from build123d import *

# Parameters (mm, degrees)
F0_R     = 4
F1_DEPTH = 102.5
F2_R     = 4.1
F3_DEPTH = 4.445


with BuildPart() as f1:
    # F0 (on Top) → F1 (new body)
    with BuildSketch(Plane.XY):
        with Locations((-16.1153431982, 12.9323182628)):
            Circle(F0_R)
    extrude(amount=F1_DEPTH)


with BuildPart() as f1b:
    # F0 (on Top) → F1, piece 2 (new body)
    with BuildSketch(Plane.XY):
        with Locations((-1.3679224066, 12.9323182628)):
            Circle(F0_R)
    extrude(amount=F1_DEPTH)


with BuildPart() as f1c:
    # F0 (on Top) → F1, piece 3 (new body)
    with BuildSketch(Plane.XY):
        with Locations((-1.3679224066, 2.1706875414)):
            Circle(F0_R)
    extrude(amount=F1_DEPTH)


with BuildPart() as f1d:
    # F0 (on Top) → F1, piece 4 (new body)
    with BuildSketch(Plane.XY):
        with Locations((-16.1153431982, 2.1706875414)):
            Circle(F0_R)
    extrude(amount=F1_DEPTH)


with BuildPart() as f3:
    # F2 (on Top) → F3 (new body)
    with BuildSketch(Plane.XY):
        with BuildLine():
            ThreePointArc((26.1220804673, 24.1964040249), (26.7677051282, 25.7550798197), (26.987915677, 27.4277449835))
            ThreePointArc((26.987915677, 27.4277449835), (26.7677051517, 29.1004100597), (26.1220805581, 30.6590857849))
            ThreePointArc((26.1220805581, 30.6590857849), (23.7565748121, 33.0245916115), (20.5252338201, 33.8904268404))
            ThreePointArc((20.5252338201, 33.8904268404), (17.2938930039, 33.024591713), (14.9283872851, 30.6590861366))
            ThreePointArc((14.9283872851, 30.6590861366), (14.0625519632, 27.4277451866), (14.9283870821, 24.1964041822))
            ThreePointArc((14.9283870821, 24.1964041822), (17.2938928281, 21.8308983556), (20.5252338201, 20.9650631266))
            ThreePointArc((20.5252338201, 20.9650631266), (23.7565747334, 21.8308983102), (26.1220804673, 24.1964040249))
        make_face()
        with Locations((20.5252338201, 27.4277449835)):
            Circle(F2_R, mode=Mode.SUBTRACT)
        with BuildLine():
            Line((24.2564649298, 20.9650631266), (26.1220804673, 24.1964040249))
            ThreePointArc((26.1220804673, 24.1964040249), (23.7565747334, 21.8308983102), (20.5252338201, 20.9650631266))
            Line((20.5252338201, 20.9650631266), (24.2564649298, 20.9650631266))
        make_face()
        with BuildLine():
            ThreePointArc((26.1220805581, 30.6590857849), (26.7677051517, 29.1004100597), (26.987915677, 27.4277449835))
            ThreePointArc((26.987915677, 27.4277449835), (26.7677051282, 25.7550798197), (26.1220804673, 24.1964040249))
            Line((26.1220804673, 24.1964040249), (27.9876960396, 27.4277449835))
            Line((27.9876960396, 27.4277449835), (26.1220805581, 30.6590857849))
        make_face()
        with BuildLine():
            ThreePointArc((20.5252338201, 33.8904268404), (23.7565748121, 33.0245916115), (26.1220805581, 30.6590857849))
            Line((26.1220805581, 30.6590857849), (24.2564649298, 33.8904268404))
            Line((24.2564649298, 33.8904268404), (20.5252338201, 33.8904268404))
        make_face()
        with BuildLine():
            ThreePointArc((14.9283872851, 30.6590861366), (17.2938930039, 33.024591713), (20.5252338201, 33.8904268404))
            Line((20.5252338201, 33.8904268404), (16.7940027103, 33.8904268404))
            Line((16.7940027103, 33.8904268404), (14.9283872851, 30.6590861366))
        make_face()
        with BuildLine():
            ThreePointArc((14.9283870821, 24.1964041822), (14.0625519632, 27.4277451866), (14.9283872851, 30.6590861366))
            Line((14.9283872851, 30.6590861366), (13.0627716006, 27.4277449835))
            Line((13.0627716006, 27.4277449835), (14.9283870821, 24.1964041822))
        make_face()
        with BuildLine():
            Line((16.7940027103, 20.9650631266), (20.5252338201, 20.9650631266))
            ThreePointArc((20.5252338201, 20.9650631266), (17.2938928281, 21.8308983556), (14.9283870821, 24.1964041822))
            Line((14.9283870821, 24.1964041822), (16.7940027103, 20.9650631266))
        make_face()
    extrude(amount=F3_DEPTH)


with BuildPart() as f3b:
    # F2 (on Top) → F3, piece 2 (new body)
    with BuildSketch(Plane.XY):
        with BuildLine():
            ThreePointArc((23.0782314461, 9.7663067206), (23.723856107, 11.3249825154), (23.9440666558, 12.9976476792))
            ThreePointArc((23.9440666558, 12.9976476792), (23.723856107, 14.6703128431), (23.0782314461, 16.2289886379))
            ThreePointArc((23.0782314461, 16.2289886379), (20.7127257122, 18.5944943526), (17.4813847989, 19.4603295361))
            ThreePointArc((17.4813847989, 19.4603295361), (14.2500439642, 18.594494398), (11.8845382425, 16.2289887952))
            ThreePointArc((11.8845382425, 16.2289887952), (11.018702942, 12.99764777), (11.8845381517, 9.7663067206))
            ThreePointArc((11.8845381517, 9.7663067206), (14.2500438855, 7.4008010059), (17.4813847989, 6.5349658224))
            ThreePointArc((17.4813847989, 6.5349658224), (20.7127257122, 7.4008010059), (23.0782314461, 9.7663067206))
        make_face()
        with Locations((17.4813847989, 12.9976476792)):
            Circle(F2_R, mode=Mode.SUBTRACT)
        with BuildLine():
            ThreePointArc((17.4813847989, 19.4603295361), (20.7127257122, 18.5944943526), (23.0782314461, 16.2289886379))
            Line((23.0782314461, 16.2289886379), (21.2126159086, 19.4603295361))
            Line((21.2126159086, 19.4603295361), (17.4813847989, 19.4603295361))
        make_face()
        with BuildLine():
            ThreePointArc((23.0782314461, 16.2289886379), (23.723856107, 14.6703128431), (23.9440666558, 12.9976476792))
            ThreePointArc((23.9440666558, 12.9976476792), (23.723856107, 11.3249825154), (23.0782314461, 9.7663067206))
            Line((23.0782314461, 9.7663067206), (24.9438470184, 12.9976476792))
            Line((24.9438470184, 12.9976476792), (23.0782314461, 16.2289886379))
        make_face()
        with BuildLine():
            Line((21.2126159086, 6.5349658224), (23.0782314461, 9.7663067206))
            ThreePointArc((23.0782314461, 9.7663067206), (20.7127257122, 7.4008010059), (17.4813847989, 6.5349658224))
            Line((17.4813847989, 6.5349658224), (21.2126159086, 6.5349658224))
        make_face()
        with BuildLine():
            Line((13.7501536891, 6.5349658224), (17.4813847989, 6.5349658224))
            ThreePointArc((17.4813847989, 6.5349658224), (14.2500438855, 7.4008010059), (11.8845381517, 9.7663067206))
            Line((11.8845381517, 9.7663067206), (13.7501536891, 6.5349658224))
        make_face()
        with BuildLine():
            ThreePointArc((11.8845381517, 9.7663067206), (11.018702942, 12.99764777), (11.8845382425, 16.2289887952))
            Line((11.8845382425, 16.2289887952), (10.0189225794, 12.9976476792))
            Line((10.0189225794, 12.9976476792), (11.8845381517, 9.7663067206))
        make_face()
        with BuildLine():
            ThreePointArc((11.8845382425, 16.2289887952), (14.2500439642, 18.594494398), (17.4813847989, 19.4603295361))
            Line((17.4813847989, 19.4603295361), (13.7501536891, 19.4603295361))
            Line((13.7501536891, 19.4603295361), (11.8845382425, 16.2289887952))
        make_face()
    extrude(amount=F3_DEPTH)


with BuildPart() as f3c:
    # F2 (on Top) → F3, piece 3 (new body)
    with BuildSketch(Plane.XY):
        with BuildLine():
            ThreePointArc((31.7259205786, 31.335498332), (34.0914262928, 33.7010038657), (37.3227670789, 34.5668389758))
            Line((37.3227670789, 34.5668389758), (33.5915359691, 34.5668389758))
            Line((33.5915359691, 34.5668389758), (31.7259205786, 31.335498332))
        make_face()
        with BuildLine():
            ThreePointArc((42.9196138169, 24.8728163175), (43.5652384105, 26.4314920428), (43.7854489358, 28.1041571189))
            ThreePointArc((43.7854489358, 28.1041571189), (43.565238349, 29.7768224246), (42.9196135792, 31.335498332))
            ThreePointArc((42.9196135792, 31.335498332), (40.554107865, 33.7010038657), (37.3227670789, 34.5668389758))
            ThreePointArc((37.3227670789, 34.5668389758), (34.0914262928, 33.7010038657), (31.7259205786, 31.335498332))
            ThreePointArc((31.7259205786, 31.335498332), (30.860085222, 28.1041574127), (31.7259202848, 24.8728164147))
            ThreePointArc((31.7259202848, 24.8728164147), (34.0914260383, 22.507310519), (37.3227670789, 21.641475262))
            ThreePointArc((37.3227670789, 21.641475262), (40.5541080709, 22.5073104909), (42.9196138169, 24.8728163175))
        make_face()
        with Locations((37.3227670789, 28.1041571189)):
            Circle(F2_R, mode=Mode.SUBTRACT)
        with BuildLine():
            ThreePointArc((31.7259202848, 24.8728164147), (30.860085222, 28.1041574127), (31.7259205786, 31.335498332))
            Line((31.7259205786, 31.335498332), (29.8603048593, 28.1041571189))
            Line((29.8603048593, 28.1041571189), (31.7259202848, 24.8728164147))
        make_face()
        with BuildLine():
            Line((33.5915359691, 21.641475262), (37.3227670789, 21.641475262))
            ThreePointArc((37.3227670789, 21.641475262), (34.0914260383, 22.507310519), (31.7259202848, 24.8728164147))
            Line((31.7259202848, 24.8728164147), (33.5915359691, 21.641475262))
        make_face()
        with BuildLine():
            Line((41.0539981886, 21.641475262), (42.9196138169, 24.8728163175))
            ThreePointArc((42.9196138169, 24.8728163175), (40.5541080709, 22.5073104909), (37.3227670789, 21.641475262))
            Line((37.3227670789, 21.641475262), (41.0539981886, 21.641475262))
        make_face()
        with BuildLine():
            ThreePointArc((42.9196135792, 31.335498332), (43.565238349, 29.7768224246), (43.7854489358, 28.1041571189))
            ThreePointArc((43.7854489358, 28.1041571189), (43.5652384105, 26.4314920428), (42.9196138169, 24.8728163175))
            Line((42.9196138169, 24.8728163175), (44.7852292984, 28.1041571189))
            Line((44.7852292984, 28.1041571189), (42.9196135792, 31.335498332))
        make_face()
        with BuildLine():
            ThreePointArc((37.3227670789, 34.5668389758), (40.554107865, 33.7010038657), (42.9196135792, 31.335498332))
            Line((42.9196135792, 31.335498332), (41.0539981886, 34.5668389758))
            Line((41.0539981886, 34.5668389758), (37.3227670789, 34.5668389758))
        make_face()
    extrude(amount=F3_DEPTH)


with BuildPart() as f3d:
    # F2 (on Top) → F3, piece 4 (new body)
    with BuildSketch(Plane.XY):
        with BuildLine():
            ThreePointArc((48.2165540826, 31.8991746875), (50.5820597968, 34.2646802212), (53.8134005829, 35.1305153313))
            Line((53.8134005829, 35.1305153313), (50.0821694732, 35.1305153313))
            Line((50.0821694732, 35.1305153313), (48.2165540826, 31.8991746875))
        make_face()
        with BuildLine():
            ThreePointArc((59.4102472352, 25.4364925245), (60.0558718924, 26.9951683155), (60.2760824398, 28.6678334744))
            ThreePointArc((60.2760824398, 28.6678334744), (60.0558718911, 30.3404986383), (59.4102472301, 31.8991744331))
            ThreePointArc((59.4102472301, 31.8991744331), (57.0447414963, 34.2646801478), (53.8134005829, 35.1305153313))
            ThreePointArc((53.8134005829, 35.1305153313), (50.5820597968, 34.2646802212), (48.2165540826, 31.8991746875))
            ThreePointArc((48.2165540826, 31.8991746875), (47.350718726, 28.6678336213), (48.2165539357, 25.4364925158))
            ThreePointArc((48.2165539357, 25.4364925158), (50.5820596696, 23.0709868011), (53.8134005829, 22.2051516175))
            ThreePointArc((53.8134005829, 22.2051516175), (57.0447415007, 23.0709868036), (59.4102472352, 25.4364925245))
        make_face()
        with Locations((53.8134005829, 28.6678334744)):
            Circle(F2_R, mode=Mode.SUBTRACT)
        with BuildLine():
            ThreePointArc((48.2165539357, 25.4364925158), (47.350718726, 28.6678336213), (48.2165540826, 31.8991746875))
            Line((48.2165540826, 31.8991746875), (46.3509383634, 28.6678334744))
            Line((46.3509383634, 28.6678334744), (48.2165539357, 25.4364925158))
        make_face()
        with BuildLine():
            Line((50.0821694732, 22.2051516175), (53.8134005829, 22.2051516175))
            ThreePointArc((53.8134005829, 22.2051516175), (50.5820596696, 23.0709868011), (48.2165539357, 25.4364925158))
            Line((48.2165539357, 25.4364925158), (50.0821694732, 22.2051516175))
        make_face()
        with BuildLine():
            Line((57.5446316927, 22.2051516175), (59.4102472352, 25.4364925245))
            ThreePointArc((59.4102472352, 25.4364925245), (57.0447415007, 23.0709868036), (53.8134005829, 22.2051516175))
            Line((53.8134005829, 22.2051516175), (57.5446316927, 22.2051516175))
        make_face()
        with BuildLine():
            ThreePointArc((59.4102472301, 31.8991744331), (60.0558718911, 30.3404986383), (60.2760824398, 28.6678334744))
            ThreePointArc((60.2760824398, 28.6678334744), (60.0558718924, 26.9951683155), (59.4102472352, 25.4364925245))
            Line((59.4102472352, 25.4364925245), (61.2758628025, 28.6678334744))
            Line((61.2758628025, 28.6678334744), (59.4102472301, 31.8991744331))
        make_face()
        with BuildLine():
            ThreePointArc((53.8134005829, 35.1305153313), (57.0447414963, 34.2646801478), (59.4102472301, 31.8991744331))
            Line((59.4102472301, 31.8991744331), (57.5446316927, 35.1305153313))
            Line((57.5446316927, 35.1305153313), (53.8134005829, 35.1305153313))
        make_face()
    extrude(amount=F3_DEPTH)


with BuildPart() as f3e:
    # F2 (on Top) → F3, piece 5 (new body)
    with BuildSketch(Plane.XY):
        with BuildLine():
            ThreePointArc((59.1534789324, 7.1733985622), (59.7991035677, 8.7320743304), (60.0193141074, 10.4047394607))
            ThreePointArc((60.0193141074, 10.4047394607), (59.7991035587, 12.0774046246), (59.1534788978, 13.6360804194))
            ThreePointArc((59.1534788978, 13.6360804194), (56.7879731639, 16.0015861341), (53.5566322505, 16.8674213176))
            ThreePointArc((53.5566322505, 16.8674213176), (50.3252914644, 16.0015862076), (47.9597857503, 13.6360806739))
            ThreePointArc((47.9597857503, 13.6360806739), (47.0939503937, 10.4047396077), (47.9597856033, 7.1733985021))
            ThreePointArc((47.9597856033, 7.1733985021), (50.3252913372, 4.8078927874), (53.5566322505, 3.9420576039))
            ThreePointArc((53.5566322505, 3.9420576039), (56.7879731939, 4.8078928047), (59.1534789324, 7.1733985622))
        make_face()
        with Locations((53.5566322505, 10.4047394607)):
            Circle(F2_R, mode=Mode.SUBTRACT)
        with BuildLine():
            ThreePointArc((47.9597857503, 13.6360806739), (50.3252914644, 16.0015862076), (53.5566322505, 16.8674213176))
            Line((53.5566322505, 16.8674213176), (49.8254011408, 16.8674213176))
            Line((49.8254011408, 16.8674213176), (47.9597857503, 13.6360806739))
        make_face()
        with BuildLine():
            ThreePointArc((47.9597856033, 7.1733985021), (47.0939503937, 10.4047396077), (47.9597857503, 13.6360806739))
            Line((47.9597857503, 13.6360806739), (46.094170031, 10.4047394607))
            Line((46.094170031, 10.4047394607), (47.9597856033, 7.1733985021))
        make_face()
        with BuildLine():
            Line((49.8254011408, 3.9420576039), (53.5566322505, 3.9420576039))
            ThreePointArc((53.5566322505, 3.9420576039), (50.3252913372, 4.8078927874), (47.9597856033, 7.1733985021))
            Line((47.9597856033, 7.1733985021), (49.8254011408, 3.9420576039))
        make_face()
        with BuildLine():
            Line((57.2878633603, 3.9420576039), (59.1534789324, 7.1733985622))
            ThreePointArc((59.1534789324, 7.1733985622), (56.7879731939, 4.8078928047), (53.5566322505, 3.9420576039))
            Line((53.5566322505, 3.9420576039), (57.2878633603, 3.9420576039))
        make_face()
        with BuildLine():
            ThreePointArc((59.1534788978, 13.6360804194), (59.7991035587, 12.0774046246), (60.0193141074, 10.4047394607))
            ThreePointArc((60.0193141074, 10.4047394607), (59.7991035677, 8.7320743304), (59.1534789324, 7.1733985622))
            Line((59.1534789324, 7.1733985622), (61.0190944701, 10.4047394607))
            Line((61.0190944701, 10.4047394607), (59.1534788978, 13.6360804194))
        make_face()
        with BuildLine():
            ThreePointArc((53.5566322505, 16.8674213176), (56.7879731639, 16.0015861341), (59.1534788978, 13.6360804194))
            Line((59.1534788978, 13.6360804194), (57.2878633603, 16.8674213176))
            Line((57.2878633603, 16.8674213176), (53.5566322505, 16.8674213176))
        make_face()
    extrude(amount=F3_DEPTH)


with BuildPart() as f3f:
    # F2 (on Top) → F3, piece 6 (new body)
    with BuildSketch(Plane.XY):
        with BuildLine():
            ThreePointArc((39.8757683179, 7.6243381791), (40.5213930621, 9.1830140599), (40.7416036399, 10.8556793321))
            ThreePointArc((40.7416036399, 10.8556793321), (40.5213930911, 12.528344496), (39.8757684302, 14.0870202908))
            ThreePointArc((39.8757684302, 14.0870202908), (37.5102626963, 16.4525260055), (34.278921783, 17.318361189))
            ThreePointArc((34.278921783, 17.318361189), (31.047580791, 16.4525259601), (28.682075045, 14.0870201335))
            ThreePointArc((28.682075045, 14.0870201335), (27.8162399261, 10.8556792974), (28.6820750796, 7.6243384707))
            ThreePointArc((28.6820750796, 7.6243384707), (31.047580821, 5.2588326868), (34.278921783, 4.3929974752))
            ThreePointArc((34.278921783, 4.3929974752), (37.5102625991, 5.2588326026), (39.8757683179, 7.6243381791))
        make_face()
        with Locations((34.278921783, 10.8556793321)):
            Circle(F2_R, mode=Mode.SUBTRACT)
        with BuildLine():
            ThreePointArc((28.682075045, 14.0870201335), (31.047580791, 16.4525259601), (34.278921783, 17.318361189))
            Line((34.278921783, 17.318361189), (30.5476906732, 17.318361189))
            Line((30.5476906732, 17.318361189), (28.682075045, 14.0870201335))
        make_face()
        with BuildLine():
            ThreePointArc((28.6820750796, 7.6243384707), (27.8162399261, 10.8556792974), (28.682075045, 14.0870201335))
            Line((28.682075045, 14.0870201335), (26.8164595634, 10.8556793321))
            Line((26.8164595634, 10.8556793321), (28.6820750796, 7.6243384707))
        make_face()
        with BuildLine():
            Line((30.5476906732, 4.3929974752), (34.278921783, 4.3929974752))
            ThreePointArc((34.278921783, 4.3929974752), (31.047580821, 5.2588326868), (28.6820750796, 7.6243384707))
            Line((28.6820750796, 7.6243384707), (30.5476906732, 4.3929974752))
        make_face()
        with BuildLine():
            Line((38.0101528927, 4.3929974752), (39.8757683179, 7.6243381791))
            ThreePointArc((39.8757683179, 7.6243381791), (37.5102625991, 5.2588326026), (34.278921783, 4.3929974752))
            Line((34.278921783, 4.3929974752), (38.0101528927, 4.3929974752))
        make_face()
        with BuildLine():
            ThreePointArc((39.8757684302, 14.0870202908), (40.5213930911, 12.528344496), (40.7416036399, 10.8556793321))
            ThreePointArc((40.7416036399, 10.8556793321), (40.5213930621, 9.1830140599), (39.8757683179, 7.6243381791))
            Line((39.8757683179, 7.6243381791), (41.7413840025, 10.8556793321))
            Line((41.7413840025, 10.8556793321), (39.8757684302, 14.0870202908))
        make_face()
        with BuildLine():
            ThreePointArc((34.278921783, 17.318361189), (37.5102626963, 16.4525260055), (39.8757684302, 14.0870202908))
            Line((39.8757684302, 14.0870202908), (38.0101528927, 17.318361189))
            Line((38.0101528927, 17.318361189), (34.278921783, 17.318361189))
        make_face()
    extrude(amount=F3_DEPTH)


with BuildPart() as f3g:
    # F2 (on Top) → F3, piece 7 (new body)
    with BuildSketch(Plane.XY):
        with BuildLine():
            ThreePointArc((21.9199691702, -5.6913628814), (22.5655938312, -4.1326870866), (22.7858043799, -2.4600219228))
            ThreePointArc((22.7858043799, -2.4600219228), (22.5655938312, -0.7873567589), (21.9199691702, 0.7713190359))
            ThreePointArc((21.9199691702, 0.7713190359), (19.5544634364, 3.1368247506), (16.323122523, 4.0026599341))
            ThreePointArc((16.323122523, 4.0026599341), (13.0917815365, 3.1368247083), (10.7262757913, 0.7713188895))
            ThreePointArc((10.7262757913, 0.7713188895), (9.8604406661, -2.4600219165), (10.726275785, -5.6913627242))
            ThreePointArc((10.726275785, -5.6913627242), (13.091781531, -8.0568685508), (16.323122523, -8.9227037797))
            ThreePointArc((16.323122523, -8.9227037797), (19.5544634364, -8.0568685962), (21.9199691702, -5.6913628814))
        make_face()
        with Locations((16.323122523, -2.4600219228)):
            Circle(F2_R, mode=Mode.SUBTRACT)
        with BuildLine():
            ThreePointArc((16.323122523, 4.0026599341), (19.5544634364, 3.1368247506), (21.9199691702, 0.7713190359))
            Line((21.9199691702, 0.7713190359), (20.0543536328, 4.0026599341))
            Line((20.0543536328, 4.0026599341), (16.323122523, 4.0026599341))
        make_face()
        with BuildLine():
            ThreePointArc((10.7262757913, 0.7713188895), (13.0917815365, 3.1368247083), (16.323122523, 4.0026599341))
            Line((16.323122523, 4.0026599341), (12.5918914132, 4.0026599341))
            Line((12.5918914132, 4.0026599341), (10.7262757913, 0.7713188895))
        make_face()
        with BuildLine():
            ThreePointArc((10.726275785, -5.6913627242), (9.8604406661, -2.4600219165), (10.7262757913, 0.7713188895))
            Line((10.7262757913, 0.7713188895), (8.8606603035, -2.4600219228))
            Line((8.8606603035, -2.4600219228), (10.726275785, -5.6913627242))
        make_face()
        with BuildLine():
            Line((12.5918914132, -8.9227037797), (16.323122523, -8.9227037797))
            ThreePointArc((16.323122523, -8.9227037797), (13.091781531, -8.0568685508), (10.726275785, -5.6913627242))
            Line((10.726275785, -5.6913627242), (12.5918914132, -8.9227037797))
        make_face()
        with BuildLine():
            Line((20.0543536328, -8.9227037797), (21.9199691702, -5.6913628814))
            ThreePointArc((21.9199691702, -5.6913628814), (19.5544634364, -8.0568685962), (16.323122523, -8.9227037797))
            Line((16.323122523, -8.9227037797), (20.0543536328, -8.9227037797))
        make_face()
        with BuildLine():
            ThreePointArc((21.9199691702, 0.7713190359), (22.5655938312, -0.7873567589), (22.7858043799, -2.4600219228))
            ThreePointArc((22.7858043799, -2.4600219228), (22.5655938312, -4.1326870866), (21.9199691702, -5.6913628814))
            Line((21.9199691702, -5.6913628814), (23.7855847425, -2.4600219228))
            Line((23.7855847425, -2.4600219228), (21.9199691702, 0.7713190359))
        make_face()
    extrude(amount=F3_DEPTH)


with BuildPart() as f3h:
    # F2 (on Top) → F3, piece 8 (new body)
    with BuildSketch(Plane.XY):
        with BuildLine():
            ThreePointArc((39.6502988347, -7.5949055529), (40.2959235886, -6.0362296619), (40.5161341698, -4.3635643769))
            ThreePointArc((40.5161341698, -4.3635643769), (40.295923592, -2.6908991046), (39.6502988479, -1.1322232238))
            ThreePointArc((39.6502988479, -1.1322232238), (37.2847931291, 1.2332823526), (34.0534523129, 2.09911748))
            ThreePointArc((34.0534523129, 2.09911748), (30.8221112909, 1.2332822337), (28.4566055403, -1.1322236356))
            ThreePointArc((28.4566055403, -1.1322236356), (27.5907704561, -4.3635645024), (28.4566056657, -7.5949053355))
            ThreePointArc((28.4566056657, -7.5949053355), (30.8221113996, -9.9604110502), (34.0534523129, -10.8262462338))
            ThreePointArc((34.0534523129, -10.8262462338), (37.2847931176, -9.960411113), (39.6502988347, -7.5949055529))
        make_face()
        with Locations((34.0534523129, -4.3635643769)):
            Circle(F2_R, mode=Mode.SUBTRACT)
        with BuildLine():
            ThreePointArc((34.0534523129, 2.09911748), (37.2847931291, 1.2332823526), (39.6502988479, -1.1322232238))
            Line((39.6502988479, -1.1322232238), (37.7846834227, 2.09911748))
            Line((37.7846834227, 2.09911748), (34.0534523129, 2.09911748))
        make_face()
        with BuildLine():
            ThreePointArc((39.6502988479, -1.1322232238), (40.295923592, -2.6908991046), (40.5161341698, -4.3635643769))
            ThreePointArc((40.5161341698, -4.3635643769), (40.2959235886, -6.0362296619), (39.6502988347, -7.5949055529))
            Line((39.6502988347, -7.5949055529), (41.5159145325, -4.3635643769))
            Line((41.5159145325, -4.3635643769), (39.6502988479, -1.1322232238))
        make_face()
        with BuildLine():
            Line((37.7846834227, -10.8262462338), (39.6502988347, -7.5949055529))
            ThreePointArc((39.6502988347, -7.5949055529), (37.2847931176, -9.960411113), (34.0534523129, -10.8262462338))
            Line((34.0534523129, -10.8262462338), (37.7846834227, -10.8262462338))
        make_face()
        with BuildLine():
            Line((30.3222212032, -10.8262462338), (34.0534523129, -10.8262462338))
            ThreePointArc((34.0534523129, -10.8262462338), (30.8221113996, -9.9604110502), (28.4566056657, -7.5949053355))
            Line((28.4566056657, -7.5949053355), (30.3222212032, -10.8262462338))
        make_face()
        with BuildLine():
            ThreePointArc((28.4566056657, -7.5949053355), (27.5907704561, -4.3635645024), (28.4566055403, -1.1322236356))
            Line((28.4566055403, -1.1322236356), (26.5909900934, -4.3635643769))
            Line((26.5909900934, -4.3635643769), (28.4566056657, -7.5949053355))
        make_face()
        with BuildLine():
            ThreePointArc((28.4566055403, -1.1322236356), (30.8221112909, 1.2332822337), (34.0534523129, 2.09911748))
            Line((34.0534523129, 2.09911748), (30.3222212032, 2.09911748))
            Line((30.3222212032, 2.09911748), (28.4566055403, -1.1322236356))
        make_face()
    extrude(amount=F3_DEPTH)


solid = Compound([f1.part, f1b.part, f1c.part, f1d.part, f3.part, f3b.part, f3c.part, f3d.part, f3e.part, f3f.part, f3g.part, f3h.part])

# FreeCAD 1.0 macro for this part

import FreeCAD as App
import Part
import Sketcher
from FreeCAD import Vector
Q = App.Units.Quantity

doc = App.newDocument("Part")
params = doc.addObject("Spreadsheet::Sheet", "Params")
for row, (alias, value) in enumerate([
    ("sketch1_diameter", "8 mm"),
    ("pad1_length", "102.5 mm"),
    ("sketch2_diameter", "8 mm"),
    ("pad2_length", "102.5 mm"),
    ("sketch3_diameter", "8 mm"),
    ("pad3_length", "102.5 mm"),
    ("sketch4_diameter", "8 mm"),
    ("pad4_length", "102.5 mm"),
    ("sketch5_diameter", "8.2 mm"),
    ("pad5_length", "4.445 mm"),
    ("sketch6_diameter", "8.2 mm"),
    ("pad6_length", "4.445 mm"),
    ("sketch7_diameter", "8.2 mm"),
    ("pad7_length", "4.445 mm"),
    ("sketch8_diameter", "8.2 mm"),
    ("pad8_length", "4.445 mm"),
    ("sketch9_diameter", "8.2 mm"),
    ("pad9_length", "4.445 mm"),
    ("sketch10_diameter", "8.2 mm"),
    ("pad10_length", "4.445 mm"),
    ("sketch11_diameter", "8.2 mm"),
    ("pad11_length", "4.445 mm"),
    ("sketch12_diameter", "8.2 mm"),
    ("pad12_length", "4.445 mm"),
], start=1):
    params.set(f"A{row}", alias)
    params.set(f"B{row}", "=" + value)
    params.setAlias(f"B{row}", alias)

body = doc.addObject("PartDesign::Body", "Body")

sketch1 = doc.addObject("Sketcher::SketchObject", "Sketch")
body.addObject(sketch1)
sketch1.AttachmentSupport = (doc.XY_Plane, [""])
sketch1.MapMode = "FlatFace"
sketch1.addGeometry(Part.Circle(Vector(-16.115343, 12.932318, 0), Vector(0, 0, 1), 4), False)
sketch1.addConstraint(Sketcher.Constraint("Diameter", 0, 8.0))
sketch1.addConstraint(Sketcher.Constraint("DistanceY", -1, 1, 0, 3, 12.932318))
sketch1.addConstraint(Sketcher.Constraint("DistanceX", 0, 3, -1, 1, 16.115343))
sketch1.setExpression("Constraints[0]", "Params.sketch1_diameter")
pad1 = doc.addObject("PartDesign::Pad", "Pad")
body.addObject(pad1)
pad1.Profile = sketch1
pad1.setExpression("Length", "Params.pad1_length")
body2 = doc.addObject("PartDesign::Body", "Body001")

sketch2 = doc.addObject("Sketcher::SketchObject", "Sketch001")
body2.addObject(sketch2)
sketch2.AttachmentSupport = (doc.getObject("XY_Plane001"), [""])
sketch2.MapMode = "FlatFace"
sketch2.addGeometry(Part.Circle(Vector(-1.367922, 12.932318, 0), Vector(0, 0, 1), 4), False)
sketch2.addConstraint(Sketcher.Constraint("Diameter", 0, 8.0))
sketch2.addConstraint(Sketcher.Constraint("DistanceY", -1, 1, 0, 3, 12.932318))
sketch2.addConstraint(Sketcher.Constraint("DistanceX", 0, 3, -1, 1, 1.367922))
sketch2.setExpression("Constraints[0]", "Params.sketch2_diameter")
pad2 = doc.addObject("PartDesign::Pad", "Pad001")
body2.addObject(pad2)
pad2.Profile = sketch2
pad2.setExpression("Length", "Params.pad2_length")
body3 = doc.addObject("PartDesign::Body", "Body002")

sketch3 = doc.addObject("Sketcher::SketchObject", "Sketch002")
body3.addObject(sketch3)
sketch3.AttachmentSupport = (doc.getObject("XY_Plane002"), [""])
sketch3.MapMode = "FlatFace"
sketch3.addGeometry(Part.Circle(Vector(-1.367922, 2.170688, 0), Vector(0, 0, 1), 4), False)
sketch3.addConstraint(Sketcher.Constraint("Diameter", 0, 8.0))
sketch3.addConstraint(Sketcher.Constraint("DistanceX", 0, 3, -1, 1, 1.367922))
sketch3.addConstraint(Sketcher.Constraint("DistanceY", -1, 1, 0, 3, 2.170688))
sketch3.setExpression("Constraints[0]", "Params.sketch3_diameter")
pad3 = doc.addObject("PartDesign::Pad", "Pad002")
body3.addObject(pad3)
pad3.Profile = sketch3
pad3.setExpression("Length", "Params.pad3_length")
body4 = doc.addObject("PartDesign::Body", "Body003")

sketch4 = doc.addObject("Sketcher::SketchObject", "Sketch003")
body4.addObject(sketch4)
sketch4.AttachmentSupport = (doc.getObject("XY_Plane003"), [""])
sketch4.MapMode = "FlatFace"
sketch4.addGeometry(Part.Circle(Vector(-16.115343, 2.170688, 0), Vector(0, 0, 1), 4), False)
sketch4.addConstraint(Sketcher.Constraint("Diameter", 0, 8.0))
sketch4.addConstraint(Sketcher.Constraint("DistanceX", 0, 3, -1, 1, 16.115343))
sketch4.addConstraint(Sketcher.Constraint("DistanceY", -1, 1, 0, 3, 2.170688))
sketch4.setExpression("Constraints[0]", "Params.sketch4_diameter")
pad4 = doc.addObject("PartDesign::Pad", "Pad003")
body4.addObject(pad4)
pad4.Profile = sketch4
pad4.setExpression("Length", "Params.pad4_length")
body5 = doc.addObject("PartDesign::Body", "Body004")

sketch5 = doc.addObject("Sketcher::SketchObject", "Sketch004")
body5.addObject(sketch5)
sketch5.AttachmentSupport = (doc.getObject("XY_Plane004"), [""])
sketch5.MapMode = "FlatFace"
sketch5.addGeometry(Part.LineSegment(Vector(24.256465, 20.965063, 0), Vector(26.12208, 24.196404, 0)), False)
sketch5.addGeometry(Part.LineSegment(Vector(26.12208, 24.196404, 0), Vector(27.987696, 27.427745, 0)), False)
sketch5.addGeometry(Part.LineSegment(Vector(27.987696, 27.427745, 0), Vector(26.122081, 30.659086, 0)), False)
sketch5.addGeometry(Part.LineSegment(Vector(26.122081, 30.659086, 0), Vector(24.256465, 33.890427, 0)), False)
sketch5.addGeometry(Part.LineSegment(Vector(24.256465, 33.890427, 0), Vector(16.794003, 33.890427, 0)), False)
sketch5.addGeometry(Part.LineSegment(Vector(16.794003, 33.890427, 0), Vector(14.928387, 30.659086, 0)), False)
sketch5.addGeometry(Part.LineSegment(Vector(14.928387, 30.659086, 0), Vector(13.062772, 27.427745, 0)), False)
sketch5.addGeometry(Part.LineSegment(Vector(13.062772, 27.427745, 0), Vector(14.928387, 24.196404, 0)), False)
sketch5.addGeometry(Part.LineSegment(Vector(14.928387, 24.196404, 0), Vector(16.794003, 20.965063, 0)), False)
sketch5.addGeometry(Part.LineSegment(Vector(16.794003, 20.965063, 0), Vector(24.256465, 20.965063, 0)), False)
sketch5.addGeometry(Part.Circle(Vector(20.525234, 27.427745, 0), Vector(0, 0, 1), 4.1), False)
sketch5.addConstraint(Sketcher.Constraint("Coincident", 0, 2, 1, 1))
sketch5.addConstraint(Sketcher.Constraint("Coincident", 1, 2, 2, 1))
sketch5.addConstraint(Sketcher.Constraint("Coincident", 2, 2, 3, 1))
sketch5.addConstraint(Sketcher.Constraint("Coincident", 3, 2, 4, 1))
sketch5.addConstraint(Sketcher.Constraint("Coincident", 4, 2, 5, 1))
sketch5.addConstraint(Sketcher.Constraint("Coincident", 5, 2, 6, 1))
sketch5.addConstraint(Sketcher.Constraint("Coincident", 6, 2, 7, 1))
sketch5.addConstraint(Sketcher.Constraint("Coincident", 7, 2, 8, 1))
sketch5.addConstraint(Sketcher.Constraint("Coincident", 8, 2, 9, 1))
sketch5.addConstraint(Sketcher.Constraint("Coincident", 9, 2, 0, 1))
sketch5.addConstraint(Sketcher.Constraint("Horizontal", 4))
sketch5.addConstraint(Sketcher.Constraint("Horizontal", 9))
sketch5.addConstraint(Sketcher.Constraint("Parallel", 0, 1))
sketch5.addConstraint(Sketcher.Constraint("Parallel", 2, 3))
sketch5.addConstraint(Sketcher.Constraint("Parallel", 1, 5))
sketch5.addConstraint(Sketcher.Constraint("Parallel", 5, 6))
sketch5.addConstraint(Sketcher.Constraint("Parallel", 3, 7))
sketch5.addConstraint(Sketcher.Constraint("Parallel", 7, 8))
sketch5.addConstraint(Sketcher.Constraint("Horizontal", 10, 3, 1, 2))
sketch5.addConstraint(Sketcher.Constraint("Horizontal", 2, 2, 5, 2))
sketch5.addConstraint(Sketcher.Constraint("Horizontal", 1, 2, 6, 2))
sketch5.addConstraint(Sketcher.Constraint("Horizontal", 0, 2, 7, 2))
sketch5.addConstraint(Sketcher.Constraint("Vertical", 0, 2, 2, 2))
sketch5.addConstraint(Sketcher.Constraint("Vertical", 5, 2, 7, 2))
sketch5.addConstraint(Sketcher.Constraint("Vertical", 4, 2, 8, 2))
sketch5.addConstraint(Sketcher.Constraint("Equal", 0, 1))
sketch5.addConstraint(Sketcher.Constraint("Diameter", 10, 8.2))
sketch5.addConstraint(Sketcher.Constraint("Angle", 0, Q("60 deg")))
sketch5.addConstraint(Sketcher.Constraint("Distance", 0, 3.731231))
sketch5.addConstraint(Sketcher.Constraint("DistanceX", 4, 2, 4, 1, 7.462462))
sketch5.addConstraint(Sketcher.Constraint("DistanceX", -1, 1, 0, 2, 26.12208))
sketch5.addConstraint(Sketcher.Constraint("DistanceX", 10, 3, 3, 2, 3.731231))
sketch5.addConstraint(Sketcher.Constraint("DistanceY", -1, 1, 10, 3, 27.427745))
sketch5.setExpression("Constraints[26]", "Params.sketch5_diameter")
pad5 = doc.addObject("PartDesign::Pad", "Pad004")
body5.addObject(pad5)
pad5.Profile = sketch5
pad5.setExpression("Length", "Params.pad5_length")
body6 = doc.addObject("PartDesign::Body", "Body005")

sketch6 = doc.addObject("Sketcher::SketchObject", "Sketch005")
body6.addObject(sketch6)
sketch6.AttachmentSupport = (doc.getObject("XY_Plane005"), [""])
sketch6.MapMode = "FlatFace"
sketch6.addGeometry(Part.LineSegment(Vector(23.078231, 16.228989, 0), Vector(21.212616, 19.46033, 0)), False)
sketch6.addGeometry(Part.LineSegment(Vector(21.212616, 19.46033, 0), Vector(13.750154, 19.46033, 0)), False)
sketch6.addGeometry(Part.LineSegment(Vector(13.750154, 19.46033, 0), Vector(11.884538, 16.228989, 0)), False)
sketch6.addGeometry(Part.LineSegment(Vector(11.884538, 16.228989, 0), Vector(10.018923, 12.997648, 0)), False)
sketch6.addGeometry(Part.LineSegment(Vector(10.018923, 12.997648, 0), Vector(11.884538, 9.766307, 0)), False)
sketch6.addGeometry(Part.LineSegment(Vector(11.884538, 9.766307, 0), Vector(13.750154, 6.534966, 0)), False)
sketch6.addGeometry(Part.LineSegment(Vector(13.750154, 6.534966, 0), Vector(21.212616, 6.534966, 0)), False)
sketch6.addGeometry(Part.LineSegment(Vector(21.212616, 6.534966, 0), Vector(23.078231, 9.766307, 0)), False)
sketch6.addGeometry(Part.LineSegment(Vector(23.078231, 9.766307, 0), Vector(24.943847, 12.997648, 0)), False)
sketch6.addGeometry(Part.LineSegment(Vector(24.943847, 12.997648, 0), Vector(23.078231, 16.228989, 0)), False)
sketch6.addGeometry(Part.Circle(Vector(17.481385, 12.997648, 0), Vector(0, 0, 1), 4.1), False)
sketch6.addConstraint(Sketcher.Constraint("Coincident", 0, 2, 1, 1))
sketch6.addConstraint(Sketcher.Constraint("Coincident", 1, 2, 2, 1))
sketch6.addConstraint(Sketcher.Constraint("Coincident", 2, 2, 3, 1))
sketch6.addConstraint(Sketcher.Constraint("Coincident", 3, 2, 4, 1))
sketch6.addConstraint(Sketcher.Constraint("Coincident", 4, 2, 5, 1))
sketch6.addConstraint(Sketcher.Constraint("Coincident", 5, 2, 6, 1))
sketch6.addConstraint(Sketcher.Constraint("Coincident", 6, 2, 7, 1))
sketch6.addConstraint(Sketcher.Constraint("Coincident", 7, 2, 8, 1))
sketch6.addConstraint(Sketcher.Constraint("Coincident", 8, 2, 9, 1))
sketch6.addConstraint(Sketcher.Constraint("Coincident", 9, 2, 0, 1))
sketch6.addConstraint(Sketcher.Constraint("Horizontal", 1))
sketch6.addConstraint(Sketcher.Constraint("Horizontal", 6))
sketch6.addConstraint(Sketcher.Constraint("Parallel", 2, 3))
sketch6.addConstraint(Sketcher.Constraint("Parallel", 0, 4))
sketch6.addConstraint(Sketcher.Constraint("Parallel", 4, 5))
sketch6.addConstraint(Sketcher.Constraint("Parallel", 3, 7))
sketch6.addConstraint(Sketcher.Constraint("Parallel", 7, 8))
sketch6.addConstraint(Sketcher.Constraint("Parallel", 5, 9))
sketch6.addConstraint(Sketcher.Constraint("Horizontal", 10, 3, 3, 2))
sketch6.addConstraint(Sketcher.Constraint("Horizontal", 4, 2, 7, 2))
sketch6.addConstraint(Sketcher.Constraint("Horizontal", 3, 2, 8, 2))
sketch6.addConstraint(Sketcher.Constraint("Horizontal", 2, 2, 9, 2))
sketch6.addConstraint(Sketcher.Constraint("Vertical", 2, 2, 4, 2))
sketch6.addConstraint(Sketcher.Constraint("Vertical", 1, 2, 5, 2))
sketch6.addConstraint(Sketcher.Constraint("Vertical", 0, 2, 6, 2))
sketch6.addConstraint(Sketcher.Constraint("Equal", 2, 3))
sketch6.addConstraint(Sketcher.Constraint("Diameter", 10, 8.2))
sketch6.addConstraint(Sketcher.Constraint("Angle", 0, Q("120 deg")))
sketch6.addConstraint(Sketcher.Constraint("Distance", 0, 3.731231))
sketch6.addConstraint(Sketcher.Constraint("DistanceX", 1, 2, 1, 1, 7.462462))
sketch6.addConstraint(Sketcher.Constraint("DistanceY", -1, 1, 0, 2, 19.46033))
sketch6.addConstraint(Sketcher.Constraint("DistanceX", -1, 1, 2, 2, 11.884538))
sketch6.addConstraint(Sketcher.Constraint("DistanceX", 10, 3, 0, 2, 3.731231))
sketch6.setExpression("Constraints[26]", "Params.sketch6_diameter")
pad6 = doc.addObject("PartDesign::Pad", "Pad005")
body6.addObject(pad6)
pad6.Profile = sketch6
pad6.setExpression("Length", "Params.pad6_length")
body7 = doc.addObject("PartDesign::Body", "Body006")

sketch7 = doc.addObject("Sketcher::SketchObject", "Sketch006")
body7.addObject(sketch7)
sketch7.AttachmentSupport = (doc.getObject("XY_Plane006"), [""])
sketch7.MapMode = "FlatFace"
sketch7.addGeometry(Part.LineSegment(Vector(33.591536, 34.566839, 0), Vector(31.725921, 31.335498, 0)), False)
sketch7.addGeometry(Part.LineSegment(Vector(31.725921, 31.335498, 0), Vector(29.860305, 28.104157, 0)), False)
sketch7.addGeometry(Part.LineSegment(Vector(29.860305, 28.104157, 0), Vector(31.72592, 24.872816, 0)), False)
sketch7.addGeometry(Part.LineSegment(Vector(31.72592, 24.872816, 0), Vector(33.591536, 21.641475, 0)), False)
sketch7.addGeometry(Part.LineSegment(Vector(33.591536, 21.641475, 0), Vector(41.053998, 21.641475, 0)), False)
sketch7.addGeometry(Part.LineSegment(Vector(41.053998, 21.641475, 0), Vector(42.919614, 24.872816, 0)), False)
sketch7.addGeometry(Part.LineSegment(Vector(42.919614, 24.872816, 0), Vector(44.785229, 28.104157, 0)), False)
sketch7.addGeometry(Part.LineSegment(Vector(44.785229, 28.104157, 0), Vector(42.919614, 31.335498, 0)), False)
sketch7.addGeometry(Part.LineSegment(Vector(42.919614, 31.335498, 0), Vector(41.053998, 34.566839, 0)), False)
sketch7.addGeometry(Part.LineSegment(Vector(41.053998, 34.566839, 0), Vector(33.591536, 34.566839, 0)), False)
sketch7.addGeometry(Part.Circle(Vector(37.322767, 28.104157, 0), Vector(0, 0, 1), 4.1), False)
sketch7.addConstraint(Sketcher.Constraint("Coincident", 0, 2, 1, 1))
sketch7.addConstraint(Sketcher.Constraint("Coincident", 1, 2, 2, 1))
sketch7.addConstraint(Sketcher.Constraint("Coincident", 2, 2, 3, 1))
sketch7.addConstraint(Sketcher.Constraint("Coincident", 3, 2, 4, 1))
sketch7.addConstraint(Sketcher.Constraint("Coincident", 4, 2, 5, 1))
sketch7.addConstraint(Sketcher.Constraint("Coincident", 5, 2, 6, 1))
sketch7.addConstraint(Sketcher.Constraint("Coincident", 6, 2, 7, 1))
sketch7.addConstraint(Sketcher.Constraint("Coincident", 7, 2, 8, 1))
sketch7.addConstraint(Sketcher.Constraint("Coincident", 8, 2, 9, 1))
sketch7.addConstraint(Sketcher.Constraint("Coincident", 9, 2, 0, 1))
sketch7.addConstraint(Sketcher.Constraint("Horizontal", 4))
sketch7.addConstraint(Sketcher.Constraint("Horizontal", 9))
sketch7.addConstraint(Sketcher.Constraint("Parallel", 0, 1))
sketch7.addConstraint(Sketcher.Constraint("Parallel", 2, 3))
sketch7.addConstraint(Sketcher.Constraint("Parallel", 1, 5))
sketch7.addConstraint(Sketcher.Constraint("Parallel", 5, 6))
sketch7.addConstraint(Sketcher.Constraint("Parallel", 3, 7))
sketch7.addConstraint(Sketcher.Constraint("Parallel", 7, 8))
sketch7.addConstraint(Sketcher.Constraint("Horizontal", 10, 3, 1, 2))
sketch7.addConstraint(Sketcher.Constraint("Horizontal", 2, 2, 5, 2))
sketch7.addConstraint(Sketcher.Constraint("Horizontal", 1, 2, 6, 2))
sketch7.addConstraint(Sketcher.Constraint("Horizontal", 0, 2, 7, 2))
sketch7.addConstraint(Sketcher.Constraint("Vertical", 0, 2, 2, 2))
sketch7.addConstraint(Sketcher.Constraint("Vertical", 5, 2, 7, 2))
sketch7.addConstraint(Sketcher.Constraint("Vertical", 4, 2, 8, 2))
sketch7.addConstraint(Sketcher.Constraint("Equal", 0, 1))
sketch7.addConstraint(Sketcher.Constraint("Diameter", 10, 8.2))
sketch7.addConstraint(Sketcher.Constraint("Angle", 0, Q("-120 deg")))
sketch7.addConstraint(Sketcher.Constraint("DistanceX", -1, 1, 4, 2, 41.053998))
sketch7.addConstraint(Sketcher.Constraint("DistanceY", -1, 1, 0, 2, 31.335498))
sketch7.addConstraint(Sketcher.Constraint("Distance", 0, 3.731231))
sketch7.addConstraint(Sketcher.Constraint("DistanceX", 4, 1, 4, 2, 7.462462))
sketch7.addConstraint(Sketcher.Constraint("DistanceX", 3, 2, 10, 3, 3.731231))
sketch7.setExpression("Constraints[26]", "Params.sketch7_diameter")
pad7 = doc.addObject("PartDesign::Pad", "Pad006")
body7.addObject(pad7)
pad7.Profile = sketch7
pad7.setExpression("Length", "Params.pad7_length")
body8 = doc.addObject("PartDesign::Body", "Body007")

sketch8 = doc.addObject("Sketcher::SketchObject", "Sketch007")
body8.addObject(sketch8)
sketch8.AttachmentSupport = (doc.getObject("XY_Plane007"), [""])
sketch8.MapMode = "FlatFace"
sketch8.addGeometry(Part.LineSegment(Vector(50.082169, 35.130515, 0), Vector(48.216554, 31.899175, 0)), False)
sketch8.addGeometry(Part.LineSegment(Vector(48.216554, 31.899175, 0), Vector(46.350938, 28.667833, 0)), False)
sketch8.addGeometry(Part.LineSegment(Vector(46.350938, 28.667833, 0), Vector(48.216554, 25.436493, 0)), False)
sketch8.addGeometry(Part.LineSegment(Vector(48.216554, 25.436493, 0), Vector(50.082169, 22.205152, 0)), False)
sketch8.addGeometry(Part.LineSegment(Vector(50.082169, 22.205152, 0), Vector(57.544632, 22.205152, 0)), False)
sketch8.addGeometry(Part.LineSegment(Vector(57.544632, 22.205152, 0), Vector(59.410247, 25.436493, 0)), False)
sketch8.addGeometry(Part.LineSegment(Vector(59.410247, 25.436493, 0), Vector(61.275863, 28.667833, 0)), False)
sketch8.addGeometry(Part.LineSegment(Vector(61.275863, 28.667833, 0), Vector(59.410247, 31.899174, 0)), False)
sketch8.addGeometry(Part.LineSegment(Vector(59.410247, 31.899174, 0), Vector(57.544632, 35.130515, 0)), False)
sketch8.addGeometry(Part.LineSegment(Vector(57.544632, 35.130515, 0), Vector(50.082169, 35.130515, 0)), False)
sketch8.addGeometry(Part.Circle(Vector(53.813401, 28.667833, 0), Vector(0, 0, 1), 4.1), False)
sketch8.addConstraint(Sketcher.Constraint("Coincident", 0, 2, 1, 1))
sketch8.addConstraint(Sketcher.Constraint("Coincident", 1, 2, 2, 1))
sketch8.addConstraint(Sketcher.Constraint("Coincident", 2, 2, 3, 1))
sketch8.addConstraint(Sketcher.Constraint("Coincident", 3, 2, 4, 1))
sketch8.addConstraint(Sketcher.Constraint("Coincident", 4, 2, 5, 1))
sketch8.addConstraint(Sketcher.Constraint("Coincident", 5, 2, 6, 1))
sketch8.addConstraint(Sketcher.Constraint("Coincident", 6, 2, 7, 1))
sketch8.addConstraint(Sketcher.Constraint("Coincident", 7, 2, 8, 1))
sketch8.addConstraint(Sketcher.Constraint("Coincident", 8, 2, 9, 1))
sketch8.addConstraint(Sketcher.Constraint("Coincident", 9, 2, 0, 1))
sketch8.addConstraint(Sketcher.Constraint("Horizontal", 4))
sketch8.addConstraint(Sketcher.Constraint("Horizontal", 9))
sketch8.addConstraint(Sketcher.Constraint("Parallel", 0, 1))
sketch8.addConstraint(Sketcher.Constraint("Parallel", 2, 3))
sketch8.addConstraint(Sketcher.Constraint("Parallel", 1, 5))
sketch8.addConstraint(Sketcher.Constraint("Parallel", 5, 6))
sketch8.addConstraint(Sketcher.Constraint("Parallel", 3, 7))
sketch8.addConstraint(Sketcher.Constraint("Parallel", 7, 8))
sketch8.addConstraint(Sketcher.Constraint("Horizontal", 10, 3, 1, 2))
sketch8.addConstraint(Sketcher.Constraint("Horizontal", 2, 2, 5, 2))
sketch8.addConstraint(Sketcher.Constraint("Horizontal", 1, 2, 6, 2))
sketch8.addConstraint(Sketcher.Constraint("Horizontal", 0, 2, 7, 2))
sketch8.addConstraint(Sketcher.Constraint("Vertical", 0, 2, 2, 2))
sketch8.addConstraint(Sketcher.Constraint("Vertical", 5, 2, 7, 2))
sketch8.addConstraint(Sketcher.Constraint("Vertical", 4, 2, 8, 2))
sketch8.addConstraint(Sketcher.Constraint("Equal", 0, 1))
sketch8.addConstraint(Sketcher.Constraint("Diameter", 10, 8.2))
sketch8.addConstraint(Sketcher.Constraint("Angle", 0, Q("-120 deg")))
sketch8.addConstraint(Sketcher.Constraint("DistanceX", -1, 1, 10, 3, 53.813401))
sketch8.addConstraint(Sketcher.Constraint("Distance", 0, 3.731231))
sketch8.addConstraint(Sketcher.Constraint("DistanceX", 4, 1, 4, 2, 7.462462))
sketch8.addConstraint(Sketcher.Constraint("DistanceX", -1, 1, 1, 2, 46.350938))
sketch8.addConstraint(Sketcher.Constraint("DistanceY", -1, 1, 3, 2, 22.205152))
sketch8.setExpression("Constraints[26]", "Params.sketch8_diameter")
pad8 = doc.addObject("PartDesign::Pad", "Pad007")
body8.addObject(pad8)
pad8.Profile = sketch8
pad8.setExpression("Length", "Params.pad8_length")
body9 = doc.addObject("PartDesign::Body", "Body008")

sketch9 = doc.addObject("Sketcher::SketchObject", "Sketch008")
body9.addObject(sketch9)
sketch9.AttachmentSupport = (doc.getObject("XY_Plane008"), [""])
sketch9.MapMode = "FlatFace"
sketch9.addGeometry(Part.LineSegment(Vector(49.825401, 16.867421, 0), Vector(46.09417, 10.404739, 0)), False)
sketch9.addGeometry(Part.LineSegment(Vector(46.09417, 10.404739, 0), Vector(47.959786, 7.173399, 0)), False)
sketch9.addGeometry(Part.LineSegment(Vector(47.959786, 7.173399, 0), Vector(49.825401, 3.942058, 0)), False)
sketch9.addGeometry(Part.LineSegment(Vector(49.825401, 3.942058, 0), Vector(57.287863, 3.942058, 0)), False)
sketch9.addGeometry(Part.LineSegment(Vector(57.287863, 3.942058, 0), Vector(59.153479, 7.173399, 0)), False)
sketch9.addGeometry(Part.LineSegment(Vector(59.153479, 7.173399, 0), Vector(61.019094, 10.404739, 0)), False)
sketch9.addGeometry(Part.LineSegment(Vector(61.019094, 10.404739, 0), Vector(59.153479, 13.63608, 0)), False)
sketch9.addGeometry(Part.LineSegment(Vector(59.153479, 13.63608, 0), Vector(57.287863, 16.867421, 0)), False)
sketch9.addGeometry(Part.LineSegment(Vector(57.287863, 16.867421, 0), Vector(49.825401, 16.867421, 0)), False)
sketch9.addGeometry(Part.Circle(Vector(53.556632, 10.404739, 0), Vector(0, 0, 1), 4.1), False)
sketch9.addConstraint(Sketcher.Constraint("Coincident", 0, 2, 1, 1))
sketch9.addConstraint(Sketcher.Constraint("Coincident", 1, 2, 2, 1))
sketch9.addConstraint(Sketcher.Constraint("Coincident", 2, 2, 3, 1))
sketch9.addConstraint(Sketcher.Constraint("Coincident", 3, 2, 4, 1))
sketch9.addConstraint(Sketcher.Constraint("Coincident", 4, 2, 5, 1))
sketch9.addConstraint(Sketcher.Constraint("Coincident", 5, 2, 6, 1))
sketch9.addConstraint(Sketcher.Constraint("Coincident", 6, 2, 7, 1))
sketch9.addConstraint(Sketcher.Constraint("Coincident", 7, 2, 8, 1))
sketch9.addConstraint(Sketcher.Constraint("Coincident", 8, 2, 0, 1))
sketch9.addConstraint(Sketcher.Constraint("Horizontal", 3))
sketch9.addConstraint(Sketcher.Constraint("Horizontal", 8))
sketch9.addConstraint(Sketcher.Constraint("Parallel", 1, 2))
sketch9.addConstraint(Sketcher.Constraint("Parallel", 0, 4))
sketch9.addConstraint(Sketcher.Constraint("Parallel", 4, 5))
sketch9.addConstraint(Sketcher.Constraint("Parallel", 2, 6))
sketch9.addConstraint(Sketcher.Constraint("Parallel", 6, 7))
sketch9.addConstraint(Sketcher.Constraint("Horizontal", 9, 3, 0, 2))
sketch9.addConstraint(Sketcher.Constraint("Horizontal", 1, 2, 4, 2))
sketch9.addConstraint(Sketcher.Constraint("Horizontal", 0, 2, 5, 2))
sketch9.addConstraint(Sketcher.Constraint("Vertical", 4, 2, 6, 2))
sketch9.addConstraint(Sketcher.Constraint("Vertical", 3, 2, 7, 2))
sketch9.addConstraint(Sketcher.Constraint("Vertical", 2, 2, 8, 2))
sketch9.addConstraint(Sketcher.Constraint("Equal", 1, 2))
sketch9.addConstraint(Sketcher.Constraint("Diameter", 9, 8.2))
sketch9.addConstraint(Sketcher.Constraint("Angle", 0, Q("-120 deg")))
sketch9.addConstraint(Sketcher.Constraint("DistanceY", -1, 1, 1, 2, 7.173399))
sketch9.addConstraint(Sketcher.Constraint("DistanceX", -1, 1, 2, 2, 49.825401))
sketch9.addConstraint(Sketcher.Constraint("Distance", 1, 3.731231))
sketch9.addConstraint(Sketcher.Constraint("DistanceX", 3, 1, 3, 2, 7.462462))
sketch9.addConstraint(Sketcher.Constraint("DistanceX", 2, 2, 9, 3, 3.731231))
sketch9.setExpression("Constraints[23]", "Params.sketch9_diameter")
pad9 = doc.addObject("PartDesign::Pad", "Pad008")
body9.addObject(pad9)
pad9.Profile = sketch9
pad9.setExpression("Length", "Params.pad9_length")
body10 = doc.addObject("PartDesign::Body", "Body009")

sketch10 = doc.addObject("Sketcher::SketchObject", "Sketch009")
body10.addObject(sketch10)
sketch10.AttachmentSupport = (doc.getObject("XY_Plane009"), [""])
sketch10.MapMode = "FlatFace"
sketch10.addGeometry(Part.LineSegment(Vector(30.547691, 17.318361, 0), Vector(28.682075, 14.08702, 0)), False)
sketch10.addGeometry(Part.LineSegment(Vector(28.682075, 14.08702, 0), Vector(26.81646, 10.855679, 0)), False)
sketch10.addGeometry(Part.LineSegment(Vector(26.81646, 10.855679, 0), Vector(28.682075, 7.624338, 0)), False)
sketch10.addGeometry(Part.LineSegment(Vector(28.682075, 7.624338, 0), Vector(30.547691, 4.392997, 0)), False)
sketch10.addGeometry(Part.LineSegment(Vector(30.547691, 4.392997, 0), Vector(38.010153, 4.392997, 0)), False)
sketch10.addGeometry(Part.LineSegment(Vector(38.010153, 4.392997, 0), Vector(39.875768, 7.624338, 0)), False)
sketch10.addGeometry(Part.LineSegment(Vector(39.875768, 7.624338, 0), Vector(41.741384, 10.855679, 0)), False)
sketch10.addGeometry(Part.LineSegment(Vector(41.741384, 10.855679, 0), Vector(39.875768, 14.08702, 0)), False)
sketch10.addGeometry(Part.LineSegment(Vector(39.875768, 14.08702, 0), Vector(38.010153, 17.318361, 0)), False)
sketch10.addGeometry(Part.LineSegment(Vector(38.010153, 17.318361, 0), Vector(30.547691, 17.318361, 0)), False)
sketch10.addGeometry(Part.Circle(Vector(34.278922, 10.855679, 0), Vector(0, 0, 1), 4.1), False)
sketch10.addConstraint(Sketcher.Constraint("Coincident", 0, 2, 1, 1))
sketch10.addConstraint(Sketcher.Constraint("Coincident", 1, 2, 2, 1))
sketch10.addConstraint(Sketcher.Constraint("Coincident", 2, 2, 3, 1))
sketch10.addConstraint(Sketcher.Constraint("Coincident", 3, 2, 4, 1))
sketch10.addConstraint(Sketcher.Constraint("Coincident", 4, 2, 5, 1))
sketch10.addConstraint(Sketcher.Constraint("Coincident", 5, 2, 6, 1))
sketch10.addConstraint(Sketcher.Constraint("Coincident", 6, 2, 7, 1))
sketch10.addConstraint(Sketcher.Constraint("Coincident", 7, 2, 8, 1))
sketch10.addConstraint(Sketcher.Constraint("Coincident", 8, 2, 9, 1))
sketch10.addConstraint(Sketcher.Constraint("Coincident", 9, 2, 0, 1))
sketch10.addConstraint(Sketcher.Constraint("Horizontal", 4))
sketch10.addConstraint(Sketcher.Constraint("Horizontal", 9))
sketch10.addConstraint(Sketcher.Constraint("Parallel", 0, 1))
sketch10.addConstraint(Sketcher.Constraint("Parallel", 2, 3))
sketch10.addConstraint(Sketcher.Constraint("Parallel", 1, 5))
sketch10.addConstraint(Sketcher.Constraint("Parallel", 5, 6))
sketch10.addConstraint(Sketcher.Constraint("Parallel", 3, 7))
sketch10.addConstraint(Sketcher.Constraint("Parallel", 7, 8))
sketch10.addConstraint(Sketcher.Constraint("Horizontal", 10, 3, 1, 2))
sketch10.addConstraint(Sketcher.Constraint("Horizontal", 2, 2, 5, 2))
sketch10.addConstraint(Sketcher.Constraint("Horizontal", 1, 2, 6, 2))
sketch10.addConstraint(Sketcher.Constraint("Horizontal", 0, 2, 7, 2))
sketch10.addConstraint(Sketcher.Constraint("Vertical", 0, 2, 2, 2))
sketch10.addConstraint(Sketcher.Constraint("Vertical", 5, 2, 7, 2))
sketch10.addConstraint(Sketcher.Constraint("Vertical", 4, 2, 8, 2))
sketch10.addConstraint(Sketcher.Constraint("Equal", 0, 1))
sketch10.addConstraint(Sketcher.Constraint("Diameter", 10, 8.2))
sketch10.addConstraint(Sketcher.Constraint("Angle", 0, Q("-120 deg")))
sketch10.addConstraint(Sketcher.Constraint("Distance", 0, 3.731231))
sketch10.addConstraint(Sketcher.Constraint("DistanceX", 4, 1, 4, 2, 7.462462))
sketch10.addConstraint(Sketcher.Constraint("DistanceX", -1, 1, 10, 3, 34.278922))
sketch10.addConstraint(Sketcher.Constraint("DistanceY", -1, 1, 10, 3, 10.855679))
sketch10.addConstraint(Sketcher.Constraint("DistanceX", -1, 1, 1, 2, 26.81646))
sketch10.setExpression("Constraints[26]", "Params.sketch10_diameter")
pad10 = doc.addObject("PartDesign::Pad", "Pad009")
body10.addObject(pad10)
pad10.Profile = sketch10
pad10.setExpression("Length", "Params.pad10_length")
body11 = doc.addObject("PartDesign::Body", "Body010")

sketch11 = doc.addObject("Sketcher::SketchObject", "Sketch010")
body11.addObject(sketch11)
sketch11.AttachmentSupport = (doc.getObject("XY_Plane010"), [""])
sketch11.MapMode = "FlatFace"
sketch11.addGeometry(Part.LineSegment(Vector(21.919969, 0.771319, 0), Vector(20.054354, 4.00266, 0)), False)
sketch11.addGeometry(Part.LineSegment(Vector(20.054354, 4.00266, 0), Vector(12.591891, 4.00266, 0)), False)
sketch11.addGeometry(Part.LineSegment(Vector(12.591891, 4.00266, 0), Vector(10.726276, 0.771319, 0)), False)
sketch11.addGeometry(Part.LineSegment(Vector(10.726276, 0.771319, 0), Vector(8.86066, -2.460022, 0)), False)
sketch11.addGeometry(Part.LineSegment(Vector(8.86066, -2.460022, 0), Vector(10.726276, -5.691363, 0)), False)
sketch11.addGeometry(Part.LineSegment(Vector(10.726276, -5.691363, 0), Vector(12.591891, -8.922704, 0)), False)
sketch11.addGeometry(Part.LineSegment(Vector(12.591891, -8.922704, 0), Vector(20.054354, -8.922704, 0)), False)
sketch11.addGeometry(Part.LineSegment(Vector(20.054354, -8.922704, 0), Vector(21.919969, -5.691363, 0)), False)
sketch11.addGeometry(Part.LineSegment(Vector(21.919969, -5.691363, 0), Vector(23.785585, -2.460022, 0)), False)
sketch11.addGeometry(Part.LineSegment(Vector(23.785585, -2.460022, 0), Vector(21.919969, 0.771319, 0)), False)
sketch11.addGeometry(Part.Circle(Vector(16.323123, -2.460022, 0), Vector(0, 0, 1), 4.1), False)
sketch11.addConstraint(Sketcher.Constraint("Coincident", 0, 2, 1, 1))
sketch11.addConstraint(Sketcher.Constraint("Coincident", 1, 2, 2, 1))
sketch11.addConstraint(Sketcher.Constraint("Coincident", 2, 2, 3, 1))
sketch11.addConstraint(Sketcher.Constraint("Coincident", 3, 2, 4, 1))
sketch11.addConstraint(Sketcher.Constraint("Coincident", 4, 2, 5, 1))
sketch11.addConstraint(Sketcher.Constraint("Coincident", 5, 2, 6, 1))
sketch11.addConstraint(Sketcher.Constraint("Coincident", 6, 2, 7, 1))
sketch11.addConstraint(Sketcher.Constraint("Coincident", 7, 2, 8, 1))
sketch11.addConstraint(Sketcher.Constraint("Coincident", 8, 2, 9, 1))
sketch11.addConstraint(Sketcher.Constraint("Coincident", 9, 2, 0, 1))
sketch11.addConstraint(Sketcher.Constraint("Horizontal", 1))
sketch11.addConstraint(Sketcher.Constraint("Horizontal", 6))
sketch11.addConstraint(Sketcher.Constraint("Parallel", 2, 3))
sketch11.addConstraint(Sketcher.Constraint("Parallel", 0, 4))
sketch11.addConstraint(Sketcher.Constraint("Parallel", 4, 5))
sketch11.addConstraint(Sketcher.Constraint("Parallel", 3, 7))
sketch11.addConstraint(Sketcher.Constraint("Parallel", 7, 8))
sketch11.addConstraint(Sketcher.Constraint("Parallel", 5, 9))
sketch11.addConstraint(Sketcher.Constraint("Horizontal", 10, 3, 3, 2))
sketch11.addConstraint(Sketcher.Constraint("Horizontal", 4, 2, 7, 2))
sketch11.addConstraint(Sketcher.Constraint("Horizontal", 3, 2, 8, 2))
sketch11.addConstraint(Sketcher.Constraint("Horizontal", 2, 2, 9, 2))
sketch11.addConstraint(Sketcher.Constraint("Vertical", 2, 2, 4, 2))
sketch11.addConstraint(Sketcher.Constraint("Vertical", 1, 2, 5, 2))
sketch11.addConstraint(Sketcher.Constraint("Vertical", 0, 2, 6, 2))
sketch11.addConstraint(Sketcher.Constraint("Equal", 2, 3))
sketch11.addConstraint(Sketcher.Constraint("Diameter", 10, 8.2))
sketch11.addConstraint(Sketcher.Constraint("Angle", 0, Q("120 deg")))
sketch11.addConstraint(Sketcher.Constraint("Distance", 0, 3.731231))
sketch11.addConstraint(Sketcher.Constraint("DistanceX", 1, 2, 1, 1, 7.462462))
sketch11.addConstraint(Sketcher.Constraint("DistanceY", 10, 3, -1, 1, 2.460022))
sketch11.addConstraint(Sketcher.Constraint("DistanceX", -1, 1, 1, 2, 12.591891))
sketch11.addConstraint(Sketcher.Constraint("DistanceX", 10, 3, 0, 2, 3.731231))
sketch11.setExpression("Constraints[26]", "Params.sketch11_diameter")
pad11 = doc.addObject("PartDesign::Pad", "Pad010")
body11.addObject(pad11)
pad11.Profile = sketch11
pad11.setExpression("Length", "Params.pad11_length")
body12 = doc.addObject("PartDesign::Body", "Body011")

sketch12 = doc.addObject("Sketcher::SketchObject", "Sketch011")
body12.addObject(sketch12)
sketch12.AttachmentSupport = (doc.getObject("XY_Plane011"), [""])
sketch12.MapMode = "FlatFace"
sketch12.addGeometry(Part.LineSegment(Vector(37.784683, 2.099117, 0), Vector(30.322221, 2.099117, 0)), False)
sketch12.addGeometry(Part.LineSegment(Vector(30.322221, 2.099117, 0), Vector(28.456606, -1.132224, 0)), False)
sketch12.addGeometry(Part.LineSegment(Vector(28.456606, -1.132224, 0), Vector(26.59099, -4.363564, 0)), False)
sketch12.addGeometry(Part.LineSegment(Vector(26.59099, -4.363564, 0), Vector(28.456606, -7.594905, 0)), False)
sketch12.addGeometry(Part.LineSegment(Vector(28.456606, -7.594905, 0), Vector(30.322221, -10.826246, 0)), False)
sketch12.addGeometry(Part.LineSegment(Vector(30.322221, -10.826246, 0), Vector(37.784683, -10.826246, 0)), False)
sketch12.addGeometry(Part.LineSegment(Vector(37.784683, -10.826246, 0), Vector(39.650299, -7.594906, 0)), False)
sketch12.addGeometry(Part.LineSegment(Vector(39.650299, -7.594906, 0), Vector(41.515915, -4.363564, 0)), False)
sketch12.addGeometry(Part.LineSegment(Vector(41.515915, -4.363564, 0), Vector(37.784683, 2.099117, 0)), False)
sketch12.addGeometry(Part.Circle(Vector(34.053452, -4.363564, 0), Vector(0, 0, 1), 4.1), False)
sketch12.addConstraint(Sketcher.Constraint("Coincident", 0, 2, 1, 1))
sketch12.addConstraint(Sketcher.Constraint("Coincident", 1, 2, 2, 1))
sketch12.addConstraint(Sketcher.Constraint("Coincident", 2, 2, 3, 1))
sketch12.addConstraint(Sketcher.Constraint("Coincident", 3, 2, 4, 1))
sketch12.addConstraint(Sketcher.Constraint("Coincident", 4, 2, 5, 1))
sketch12.addConstraint(Sketcher.Constraint("Coincident", 5, 2, 6, 1))
sketch12.addConstraint(Sketcher.Constraint("Coincident", 6, 2, 7, 1))
sketch12.addConstraint(Sketcher.Constraint("Coincident", 7, 2, 8, 1))
sketch12.addConstraint(Sketcher.Constraint("Coincident", 8, 2, 0, 1))
sketch12.addConstraint(Sketcher.Constraint("Horizontal", 0))
sketch12.addConstraint(Sketcher.Constraint("Horizontal", 5))
sketch12.addConstraint(Sketcher.Constraint("Parallel", 1, 2))
sketch12.addConstraint(Sketcher.Constraint("Parallel", 3, 4))
sketch12.addConstraint(Sketcher.Constraint("Parallel", 2, 6))
sketch12.addConstraint(Sketcher.Constraint("Parallel", 6, 7))
sketch12.addConstraint(Sketcher.Constraint("Parallel", 4, 8))
sketch12.addConstraint(Sketcher.Constraint("Horizontal", 9, 3, 2, 2))
sketch12.addConstraint(Sketcher.Constraint("Horizontal", 3, 2, 6, 2))
sketch12.addConstraint(Sketcher.Constraint("Horizontal", 2, 2, 7, 2))
sketch12.addConstraint(Sketcher.Constraint("Vertical", 1, 2, 3, 2))
sketch12.addConstraint(Sketcher.Constraint("Vertical", 0, 2, 4, 2))
sketch12.addConstraint(Sketcher.Constraint("Vertical", 5, 2, 8, 2))
sketch12.addConstraint(Sketcher.Constraint("Equal", 1, 2))
sketch12.addConstraint(Sketcher.Constraint("Diameter", 9, 8.2))
sketch12.addConstraint(Sketcher.Constraint("Angle", 1, Q("-120 deg")))
sketch12.addConstraint(Sketcher.Constraint("DistanceX", -1, 1, 6, 2, 39.650299))
sketch12.addConstraint(Sketcher.Constraint("Distance", 1, 3.731231))
sketch12.addConstraint(Sketcher.Constraint("DistanceX", 0, 2, 0, 1, 7.462462))
sketch12.addConstraint(Sketcher.Constraint("DistanceX", 0, 2, 9, 3, 3.731231))
sketch12.addConstraint(Sketcher.Constraint("DistanceY", 9, 3, -1, 1, 4.363564))
sketch12.setExpression("Constraints[23]", "Params.sketch12_diameter")
pad12 = doc.addObject("PartDesign::Pad", "Pad011")
body12.addObject(pad12)
pad12.Profile = sketch12
pad12.setExpression("Length", "Params.pad12_length")

doc.recompute()
